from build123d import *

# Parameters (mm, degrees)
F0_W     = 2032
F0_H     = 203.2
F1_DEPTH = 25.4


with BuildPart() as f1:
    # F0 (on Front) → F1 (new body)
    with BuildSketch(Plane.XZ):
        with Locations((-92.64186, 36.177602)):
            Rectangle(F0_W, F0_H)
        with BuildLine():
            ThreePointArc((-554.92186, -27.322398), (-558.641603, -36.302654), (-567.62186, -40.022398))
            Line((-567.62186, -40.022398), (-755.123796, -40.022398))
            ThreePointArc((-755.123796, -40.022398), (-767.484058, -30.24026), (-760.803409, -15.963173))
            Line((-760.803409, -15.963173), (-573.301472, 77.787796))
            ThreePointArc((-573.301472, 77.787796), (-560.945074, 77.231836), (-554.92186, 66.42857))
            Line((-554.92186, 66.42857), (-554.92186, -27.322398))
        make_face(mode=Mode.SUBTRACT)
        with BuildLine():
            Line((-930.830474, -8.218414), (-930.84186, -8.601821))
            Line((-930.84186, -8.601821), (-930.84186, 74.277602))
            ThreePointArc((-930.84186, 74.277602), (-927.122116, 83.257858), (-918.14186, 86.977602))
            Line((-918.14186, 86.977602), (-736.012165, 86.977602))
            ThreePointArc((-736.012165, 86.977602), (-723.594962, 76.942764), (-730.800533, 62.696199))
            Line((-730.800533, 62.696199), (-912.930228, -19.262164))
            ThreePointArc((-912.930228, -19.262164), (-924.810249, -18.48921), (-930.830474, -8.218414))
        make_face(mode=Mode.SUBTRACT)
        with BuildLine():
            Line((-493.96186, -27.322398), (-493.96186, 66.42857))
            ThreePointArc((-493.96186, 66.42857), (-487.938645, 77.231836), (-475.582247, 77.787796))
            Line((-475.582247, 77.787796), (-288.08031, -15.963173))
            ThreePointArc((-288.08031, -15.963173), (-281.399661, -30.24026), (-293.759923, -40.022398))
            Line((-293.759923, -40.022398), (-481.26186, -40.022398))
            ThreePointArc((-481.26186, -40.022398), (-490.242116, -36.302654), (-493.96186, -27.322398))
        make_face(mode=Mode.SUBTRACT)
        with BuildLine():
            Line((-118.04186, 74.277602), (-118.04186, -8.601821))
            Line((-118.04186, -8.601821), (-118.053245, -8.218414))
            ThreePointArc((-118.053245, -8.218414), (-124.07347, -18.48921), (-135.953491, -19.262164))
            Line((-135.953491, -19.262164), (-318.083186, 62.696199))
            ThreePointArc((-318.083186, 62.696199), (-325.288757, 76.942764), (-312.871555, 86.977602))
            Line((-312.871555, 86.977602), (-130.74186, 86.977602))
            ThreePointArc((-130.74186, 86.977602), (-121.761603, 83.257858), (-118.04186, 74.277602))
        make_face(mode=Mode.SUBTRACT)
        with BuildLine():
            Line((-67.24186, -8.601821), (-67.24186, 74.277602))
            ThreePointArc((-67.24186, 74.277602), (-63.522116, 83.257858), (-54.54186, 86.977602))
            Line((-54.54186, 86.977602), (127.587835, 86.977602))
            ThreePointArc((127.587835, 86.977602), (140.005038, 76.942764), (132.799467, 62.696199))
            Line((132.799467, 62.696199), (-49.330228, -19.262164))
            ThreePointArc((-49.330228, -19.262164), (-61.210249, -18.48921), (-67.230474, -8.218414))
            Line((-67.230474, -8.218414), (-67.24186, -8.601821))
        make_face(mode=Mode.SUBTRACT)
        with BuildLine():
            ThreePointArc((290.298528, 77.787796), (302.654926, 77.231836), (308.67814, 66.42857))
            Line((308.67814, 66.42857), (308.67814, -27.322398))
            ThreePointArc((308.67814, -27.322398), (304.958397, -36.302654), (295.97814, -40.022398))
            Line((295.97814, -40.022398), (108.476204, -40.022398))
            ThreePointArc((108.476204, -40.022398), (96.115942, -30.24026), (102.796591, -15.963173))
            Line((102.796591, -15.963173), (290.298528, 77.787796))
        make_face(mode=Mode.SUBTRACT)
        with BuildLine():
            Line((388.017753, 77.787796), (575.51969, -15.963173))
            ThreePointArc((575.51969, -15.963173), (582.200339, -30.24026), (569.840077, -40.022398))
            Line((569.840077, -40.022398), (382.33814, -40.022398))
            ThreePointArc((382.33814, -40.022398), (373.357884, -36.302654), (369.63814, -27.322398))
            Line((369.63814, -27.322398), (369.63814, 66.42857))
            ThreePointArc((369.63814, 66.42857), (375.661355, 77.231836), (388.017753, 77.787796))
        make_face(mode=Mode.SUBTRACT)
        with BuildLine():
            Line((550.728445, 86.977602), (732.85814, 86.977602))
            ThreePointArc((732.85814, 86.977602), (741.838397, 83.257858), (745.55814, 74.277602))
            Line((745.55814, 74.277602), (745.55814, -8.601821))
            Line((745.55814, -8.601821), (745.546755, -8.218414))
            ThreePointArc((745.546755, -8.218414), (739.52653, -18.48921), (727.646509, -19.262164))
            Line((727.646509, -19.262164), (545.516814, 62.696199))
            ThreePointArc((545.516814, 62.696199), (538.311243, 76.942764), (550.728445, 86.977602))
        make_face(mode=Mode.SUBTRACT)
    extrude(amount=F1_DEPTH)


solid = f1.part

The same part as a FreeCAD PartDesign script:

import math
import FreeCAD as App
import Part
import Sketcher
from FreeCAD import Vector
Q = App.Units.Quantity


def add_polygon(sketch, points):
    """Adds a closed chain of lines whose ends are joined by coincident constraints."""
    first, n = sketch.GeometryCount, len(points)
    for a, b in zip(points, points[1:] + points[:1]):
        sketch.addGeometry(Part.LineSegment(App.Vector(*a, 0), App.Vector(*b, 0)), False)
    for i in range(n):
        sketch.addConstraint(Sketcher.Constraint("Coincident", first + i, 2, first + (i + 1) % n, 1))

doc = App.newDocument("Part")
body = doc.addObject("PartDesign::Body", "Body")

# Sketch on XZ plane
sketch1 = body.newObject("Sketcher::SketchObject", "Sketch")
sketch1.AttachmentSupport = (doc.getObject("XZ_Plane"), [""])
sketch1.MapMode = "FlatFace"
add_polygon(sketch1, [(-1108.64186, 137.777602), (-1108.64186, -65.422398), (923.35814, -65.422398), (923.35814, 137.777602)])  # lines 0-3
sketch1.addGeometry(Part.LineSegment(Vector(-554.92186, 66.42857, 0), Vector(-554.92186, -27.322398, 0)), False)  # 4
sketch1.addGeometry(Part.ArcOfCircle(Part.Circle(Vector(-567.621859, -27.322399, 0), Vector(0, 0, 1), 12.699999), math.radians(-90.000006), math.radians(0.000006)), False)  # 5
sketch1.addGeometry(Part.LineSegment(Vector(-567.62186, -40.022398, 0), Vector(-755.123796, -40.022398, 0)), False)  # 6
sketch1.addGeometry(Part.ArcOfCircle(Part.Circle(Vector(-755.123796, -27.322398, 0), Vector(0, 0, 1), 12.7), math.radians(116.565054), math.radians(269.999999)), False)  # 7
sketch1.addGeometry(Part.LineSegment(Vector(-760.803409, -15.963173, 0), Vector(-573.301472, 77.787796, 0)), False)  # 8
sketch1.addGeometry(Part.ArcOfCircle(Part.Circle(Vector(-567.621859, 66.428572, 0), Vector(0, 0, 1), 12.699999), math.radians(-0.000008), math.radians(116.565054)), False)  # 9
sketch1.addGeometry(Part.ArcOfCircle(Part.Circle(Vector(-481.26186, -27.322398, 0), Vector(0, 0, 1), 12.7), math.radians(-179.999998), math.radians(-90.000002)), False)  # 10
sketch1.addGeometry(Part.LineSegment(Vector(-493.96186, -27.322398, 0), Vector(-493.96186, 66.42857, 0)), False)  # 11
sketch1.addGeometry(Part.ArcOfCircle(Part.Circle(Vector(-481.26186, 66.428571, 0), Vector(0, 0, 1), 12.7), math.radians(63.434948), math.radians(180.000003)), False)  # 12
sketch1.addGeometry(Part.LineSegment(Vector(-475.582247, 77.787796, 0), Vector(-288.08031, -15.963173, 0)), False)  # 13
sketch1.addGeometry(Part.ArcOfCircle(Part.Circle(Vector(-293.759923, -27.322398, 0), Vector(0, 0, 1), 12.7), math.radians(-89.999999), math.radians(63.434946)), False)  # 14
sketch1.addGeometry(Part.LineSegment(Vector(-293.759923, -40.022398, 0), Vector(-481.26186, -40.022398, 0)), False)  # 15
sketch1.addGeometry(Part.LineSegment(Vector(102.796591, -15.963173, 0), Vector(290.298528, 77.787796, 0)), False)  # 16
sketch1.addGeometry(Part.ArcOfCircle(Part.Circle(Vector(295.978141, 66.428572, 0), Vector(0, 0, 1), 12.699999), math.radians(-0.000008), math.radians(116.565054)), False)  # 17
sketch1.addGeometry(Part.LineSegment(Vector(308.67814, 66.42857, 0), Vector(308.67814, -27.322398, 0)), False)  # 18
sketch1.addGeometry(Part.ArcOfCircle(Part.Circle(Vector(295.978141, -27.322399, 0), Vector(0, 0, 1), 12.699999), math.radians(-90.000006), math.radians(0.000006)), False)  # 19
sketch1.addGeometry(Part.LineSegment(Vector(295.97814, -40.022398, 0), Vector(108.476204, -40.022398, 0)), False)  # 20
sketch1.addGeometry(Part.ArcOfCircle(Part.Circle(Vector(108.476204, -27.322398, 0), Vector(0, 0, 1), 12.7), math.radians(116.565054), math.radians(269.999999)), False)  # 21
sketch1.addGeometry(Part.ArcOfCircle(Part.Circle(Vector(382.33814, 66.428571, 0), Vector(0, 0, 1), 12.7), math.radians(63.434948), math.radians(180.000003)), False)  # 22
sketch1.addGeometry(Part.LineSegment(Vector(388.017753, 77.787796, 0), Vector(575.51969, -15.963173, 0)), False)  # 23
sketch1.addGeometry(Part.ArcOfCircle(Part.Circle(Vector(569.840077, -27.322398, 0), Vector(0, 0, 1), 12.7), math.radians(-89.999999), math.radians(63.434946)), False)  # 24
sketch1.addGeometry(Part.LineSegment(Vector(569.840077, -40.022398, 0), Vector(382.33814, -40.022398, 0)), False)  # 25
sketch1.addGeometry(Part.ArcOfCircle(Part.Circle(Vector(382.33814, -27.322398, 0), Vector(0, 0, 1), 12.7), math.radians(-179.999998), math.radians(-90.000002)), False)  # 26
sketch1.addGeometry(Part.LineSegment(Vector(369.63814, -27.322398, 0), Vector(369.63814, 66.42857, 0)), False)  # 27
sketch1.addGeometry(Part.ArcOfCircle(Part.Circle(Vector(-918.141859, -7.68076, 0), Vector(0, 0, 1), 12.700001), math.radians(-177.573659), math.radians(-65.772259)), False)  # 28
sketch1.addGeometry(Part.LineSegment(Vector(-930.830474, -8.218414, 0), Vector(-930.84186, -8.601821, 0)), False)  # 29
sketch1.addGeometry(Part.LineSegment(Vector(-930.84186, -8.601821, 0), Vector(-930.84186, 74.277602, 0)), False)  # 30
sketch1.addGeometry(Part.ArcOfCircle(Part.Circle(Vector(-918.14186, 74.277602, 0), Vector(0, 0, 1), 12.7), math.radians(90.000002), math.radians(179.999998)), False)  # 31
sketch1.addGeometry(Part.LineSegment(Vector(-918.14186, 86.977602, 0), Vector(-736.012165, 86.977602, 0)), False)  # 32
sketch1.addGeometry(Part.ArcOfCircle(Part.Circle(Vector(-736.012164, 74.277602, 0), Vector(0, 0, 1), 12.7), math.radians(-65.772256), math.radians(90.000004)), False)  # 33
sketch1.addGeometry(Part.LineSegment(Vector(-730.800533, 62.696199, 0), Vector(-912.930228, -19.262164, 0)), False)  # 34
sketch1.addGeometry(Part.ArcOfCircle(Part.Circle(Vector(-130.741859, 74.277603, 0), Vector(0, 0, 1), 12.699999), math.radians(-0.000006), math.radians(90.000006)), False)  # 35
sketch1.addGeometry(Part.LineSegment(Vector(-118.04186, 74.277602, 0), Vector(-118.04186, -8.601821, 0)), False)  # 36
sketch1.addGeometry(Part.LineSegment(Vector(-118.04186, -8.601821, 0), Vector(-118.053245, -8.218414, 0)), False)  # 37
sketch1.addGeometry(Part.ArcOfCircle(Part.Circle(Vector(-130.74186, -7.68076, 0), Vector(0, 0, 1), 12.700001), math.radians(-114.227741), math.radians(-2.426341)), False)  # 38
sketch1.addGeometry(Part.LineSegment(Vector(-135.953491, -19.262164, 0), Vector(-318.083186, 62.696199, 0)), False)  # 39
sketch1.addGeometry(Part.ArcOfCircle(Part.Circle(Vector(-312.871555, 74.277602, 0), Vector(0, 0, 1), 12.7), math.radians(90.000001), math.radians(245.772256)), False)  # 40
sketch1.addGeometry(Part.LineSegment(Vector(-312.871555, 86.977602, 0), Vector(-130.74186, 86.977602, 0)), False)  # 41
sketch1.addGeometry(Part.LineSegment(Vector(-67.230474, -8.218414, 0), Vector(-67.24186, -8.601821, 0)), False)  # 42
sketch1.addGeometry(Part.LineSegment(Vector(-67.24186, -8.601821, 0), Vector(-67.24186, 74.277602, 0)), False)  # 43
sketch1.addGeometry(Part.ArcOfCircle(Part.Circle(Vector(-54.54186, 74.277602, 0), Vector(0, 0, 1), 12.7), math.radians(90.000002), math.radians(179.999998)), False)  # 44
sketch1.addGeometry(Part.LineSegment(Vector(-54.54186, 86.977602, 0), Vector(127.587835, 86.977602, 0)), False)  # 45
sketch1.addGeometry(Part.ArcOfCircle(Part.Circle(Vector(127.587836, 74.277602, 0), Vector(0, 0, 1), 12.7), math.radians(-65.772256), math.radians(90.000004)), False)  # 46
sketch1.addGeometry(Part.LineSegment(Vector(132.799467, 62.696199, 0), Vector(-49.330228, -19.262164, 0)), False)  # 47
sketch1.addGeometry(Part.ArcOfCircle(Part.Circle(Vector(-54.541859, -7.68076, 0), Vector(0, 0, 1), 12.700001), math.radians(-177.573659), math.radians(-65.772259)), False)  # 48
sketch1.addGeometry(Part.ArcOfCircle(Part.Circle(Vector(550.728445, 74.277602, 0), Vector(0, 0, 1), 12.7), math.radians(90.000001), math.radians(245.772256)), False)  # 49
sketch1.addGeometry(Part.LineSegment(Vector(550.728445, 86.977602, 0), Vector(732.85814, 86.977602, 0)), False)  # 50
sketch1.addGeometry(Part.ArcOfCircle(Part.Circle(Vector(732.858141, 74.277603, 0), Vector(0, 0, 1), 12.699999), math.radians(-0.000006), math.radians(90.000006)), False)  # 51
sketch1.addGeometry(Part.LineSegment(Vector(745.55814, 74.277602, 0), Vector(745.55814, -8.601821, 0)), False)  # 52
sketch1.addGeometry(Part.LineSegment(Vector(745.55814, -8.601821, 0), Vector(745.546755, -8.218414, 0)), False)  # 53
sketch1.addGeometry(Part.ArcOfCircle(Part.Circle(Vector(732.85814, -7.68076, 0), Vector(0, 0, 1), 12.700001), math.radians(-114.227741), math.radians(-2.426341)), False)  # 54
sketch1.addGeometry(Part.LineSegment(Vector(727.646509, -19.262164, 0), Vector(545.516814, 62.696199, 0)), False)  # 55
sketch1.addConstraint([
    Sketcher.Constraint("Coincident", 4, 2, 5, 2),
    Sketcher.Constraint("Coincident", 5, 1, 6, 1),
    Sketcher.Constraint("Coincident", 6, 2, 7, 2),
    Sketcher.Constraint("Coincident", 7, 1, 8, 1),
    Sketcher.Constraint("Coincident", 8, 2, 9, 2),
    Sketcher.Constraint("Coincident", 9, 1, 4, 1),
    Sketcher.Constraint("Coincident", 10, 1, 11, 1),
    Sketcher.Constraint("Coincident", 11, 2, 12, 2),
    Sketcher.Constraint("Coincident", 12, 1, 13, 1),
    Sketcher.Constraint("Coincident", 13, 2, 14, 2),
    Sketcher.Constraint("Coincident", 14, 1, 15, 1),
    Sketcher.Constraint("Coincident", 15, 2, 10, 2),
    Sketcher.Constraint("Coincident", 16, 2, 17, 2),
    Sketcher.Constraint("Coincident", 17, 1, 18, 1),
    Sketcher.Constraint("Coincident", 18, 2, 19, 2),
    Sketcher.Constraint("Coincident", 19, 1, 20, 1),
    Sketcher.Constraint("Coincident", 20, 2, 21, 2),
    Sketcher.Constraint("Coincident", 21, 1, 16, 1),
    Sketcher.Constraint("Coincident", 22, 1, 23, 1),
    Sketcher.Constraint("Coincident", 23, 2, 24, 2),
    Sketcher.Constraint("Coincident", 24, 1, 25, 1),
    Sketcher.Constraint("Coincident", 25, 2, 26, 2),
    Sketcher.Constraint("Coincident", 26, 1, 27, 1),
    Sketcher.Constraint("Coincident", 27, 2, 22, 2),
    Sketcher.Constraint("Coincident", 28, 1, 29, 1),
    Sketcher.Constraint("Coincident", 29, 2, 30, 1),
    Sketcher.Constraint("Coincident", 30, 2, 31, 2),
    Sketcher.Constraint("Coincident", 31, 1, 32, 1),
    Sketcher.Constraint("Coincident", 32, 2, 33, 2),
    Sketcher.Constraint("Coincident", 33, 1, 34, 1),
    Sketcher.Constraint("Coincident", 34, 2, 28, 2),
    Sketcher.Constraint("Coincident", 35, 1, 36, 1),
    Sketcher.Constraint("Coincident", 36, 2, 37, 1),
    Sketcher.Constraint("Coincident", 37, 2, 38, 2),
    Sketcher.Constraint("Coincident", 38, 1, 39, 1),
    Sketcher.Constraint("Coincident", 39, 2, 40, 2),
    Sketcher.Constraint("Coincident", 40, 1, 41, 1),
    Sketcher.Constraint("Coincident", 41, 2, 35, 2),
    Sketcher.Constraint("Coincident", 42, 2, 43, 1),
    Sketcher.Constraint("Coincident", 43, 2, 44, 2),
    Sketcher.Constraint("Coincident", 44, 1, 45, 1),
    Sketcher.Constraint("Coincident", 45, 2, 46, 2),
    Sketcher.Constraint("Coincident", 46, 1, 47, 1),
    Sketcher.Constraint("Coincident", 47, 2, 48, 2),
    Sketcher.Constraint("Coincident", 48, 1, 42, 1),
    Sketcher.Constraint("Coincident", 49, 1, 50, 1),
    Sketcher.Constraint("Coincident", 50, 2, 51, 2),
    Sketcher.Constraint("Coincident", 51, 1, 52, 1),
    Sketcher.Constraint("Coincident", 52, 2, 53, 1),
    Sketcher.Constraint("Coincident", 53, 2, 54, 2),
    Sketcher.Constraint("Coincident", 54, 1, 55, 1),
    Sketcher.Constraint("Coincident", 55, 2, 49, 2),
    Sketcher.Constraint("Vertical", 0),
    Sketcher.Constraint("Horizontal", 1),
    Sketcher.Constraint("Vertical", 2),
    Sketcher.Constraint("Horizontal", 3),
    Sketcher.Constraint("Vertical", 4),
    Sketcher.Constraint("Horizontal", 6),
    Sketcher.Constraint("Vertical", 11),
    Sketcher.Constraint("Horizontal", 15),
    Sketcher.Constraint("Vertical", 18),
    Sketcher.Constraint("Horizontal", 20),
    Sketcher.Constraint("Horizontal", 25),
    Sketcher.Constraint("Vertical", 27),
    Sketcher.Constraint("Vertical", 30),
    Sketcher.Constraint("Horizontal", 32),
    Sketcher.Constraint("Vertical", 36),
    Sketcher.Constraint("Horizontal", 41),
    Sketcher.Constraint("Vertical", 43),
    Sketcher.Constraint("Horizontal", 45),
    Sketcher.Constraint("Horizontal", 50),
    Sketcher.Constraint("Vertical", 52),
    Sketcher.Constraint("Radius", 5, Q("0.4999999 in")),
    Sketcher.Constraint("Radius", 7, Q("0.5 in")),
    Sketcher.Constraint("Radius", 9, Q("0.5 in")),
    Sketcher.Constraint("Radius", 10, Q("0.5 in")),
    Sketcher.Constraint("Radius", 12, Q("0.5 in")),
    Sketcher.Constraint("Radius", 14, Q("0.5 in")),
    Sketcher.Constraint("Radius", 17, Q("0.5 in")),
    Sketcher.Constraint("Radius", 19, Q("0.4999999 in")),
    Sketcher.Constraint("Radius", 21, Q("0.5 in")),
    Sketcher.Constraint("Radius", 22, Q("0.5 in")),
    Sketcher.Constraint("Radius", 24, Q("0.5 in")),
    Sketcher.Constraint("Radius", 26, Q("0.5 in")),
    Sketcher.Constraint("Radius", 28, Q("0.5 in")),
    Sketcher.Constraint("Radius", 31, Q("0.5 in")),
    Sketcher.Constraint("Radius", 33, Q("0.5 in")),
    Sketcher.Constraint("Radius", 35, Q("0.4999999 in")),
    Sketcher.Constraint("Radius", 38, Q("0.5 in")),
    Sketcher.Constraint("Radius", 40, Q("0.5 in")),
    Sketcher.Constraint("Radius", 44, Q("0.5 in")),
    Sketcher.Constraint("Radius", 46, Q("0.5 in")),
    Sketcher.Constraint("Radius", 48, Q("0.5 in")),
    Sketcher.Constraint("Radius", 49, Q("0.5 in")),
    Sketcher.Constraint("Radius", 51, Q("0.4999999 in")),
    Sketcher.Constraint("Radius", 54, Q("0.5 in")),
    Sketcher.Constraint("DistanceX", 1, 1, 1, 2, Q("80 in")),
    Sketcher.Constraint("DistanceY", 0, 2, 0, 1, Q("8 in")),
    Sketcher.Constraint("DistanceY", 4, 2, 4, 1, Q("93.750968 mm")),
    Sketcher.Constraint("DistanceY", 11, 1, 11, 2, Q("93.750968 mm")),
    Sketcher.Constraint("DistanceY", 18, 2, 18, 1, Q("93.750968 mm")),
    Sketcher.Constraint("DistanceY", 27, 1, 27, 2, Q("93.750968 mm")),
    Sketcher.Constraint("DistanceY", 5, 3, -1, 1, Q("27.322399 mm")),
    Sketcher.Constraint("DistanceY", 14, 3, -1, 1, Q("27.322398 mm")),
    Sketcher.Constraint("DistanceY", 19, 3, -1, 1, Q("27.322399 mm")),
    Sketcher.Constraint("DistanceY", 24, 3, -1, 1, Q("27.322398 mm")),
    Sketcher.Constraint("DistanceY", -1, 1, 31, 3, Q("74.277602 mm")),
    Sketcher.Constraint("DistanceY", -1, 1, 44, 3, Q("74.277602 mm")),
    Sketcher.Constraint("DistanceY", 0, 2, -1, 1, Q("65.422398 mm")),
    Sketcher.Constraint("DistanceY", 4, 2, -1, 1, Q("27.322398 mm")),
    Sketcher.Constraint("DistanceY", 10, 1, -1, 1, Q("27.322398 mm")),
    Sketcher.Constraint("DistanceY", 18, 2, -1, 1, Q("27.322398 mm")),
    Sketcher.Constraint("DistanceY", 26, 1, -1, 1, Q("27.322398 mm")),
    Sketcher.Constraint("DistanceY", -1, 1, 30, 2, Q("74.277602 mm")),
    Sketcher.Constraint("DistanceY", -1, 1, 33, 1, Q("62.696199 mm")),
    Sketcher.Constraint("DistanceY", -1, 1, 35, 1, Q("74.277602 mm")),
    Sketcher.Constraint("DistanceY", -1, 1, 39, 2, Q("62.696199 mm")),
    Sketcher.Constraint("DistanceY", -1, 1, 40, 1, Q("86.977602 mm")),
    Sketcher.Constraint("DistanceY", -1, 1, 43, 2, Q("74.277602 mm")),
    Sketcher.Constraint("DistanceY", -1, 1, 46, 1, Q("62.696199 mm")),
    Sketcher.Constraint("DistanceY", -1, 1, 49, 1, Q("86.977602 mm")),
    Sketcher.Constraint("DistanceY", -1, 1, 51, 1, Q("74.277602 mm")),
    Sketcher.Constraint("DistanceY", -1, 1, 55, 2, Q("62.696199 mm")),
    Sketcher.Constraint("Distance", 8, Q("209.633539 mm")),
    Sketcher.Constraint("Distance", 13, Q("209.633539 mm")),
    Sketcher.Constraint("Distance", 16, Q("209.633539 mm")),
    Sketcher.Constraint("Distance", 23, Q("209.633539 mm")),
    Sketcher.Constraint("DistanceX", 6, 2, 6, 1, Q("187.501936 mm")),
    Sketcher.Constraint("DistanceX", 15, 2, 15, 1, Q("187.501937 mm")),
    Sketcher.Constraint("DistanceX", 20, 2, 20, 1, Q("187.501936 mm")),
    Sketcher.Constraint("DistanceX", 25, 2, 25, 1, Q("187.501937 mm")),
    Sketcher.Constraint("DistanceX", 32, 1, 32, 2, Q("182.129695 mm")),
    Sketcher.Constraint("DistanceX", 41, 1, 41, 2, Q("182.129695 mm")),
    Sketcher.Constraint("DistanceX", 45, 1, 45, 2, Q("182.129695 mm")),
    Sketcher.Constraint("DistanceX", 50, 1, 50, 2, Q("182.129695 mm")),
    Sketcher.Constraint("DistanceY", 30, 1, 30, 2, Q("82.879423 mm")),
    Sketcher.Constraint("DistanceY", 36, 2, 36, 1, Q("82.879423 mm")),
    Sketcher.Constraint("DistanceY", 43, 1, 43, 2, Q("82.879423 mm")),
    Sketcher.Constraint("DistanceY", 52, 2, 52, 1, Q("82.879423 mm")),
    Sketcher.Constraint("DistanceX", 5, 3, -1, 1, Q("567.621859 mm")),
    Sketcher.Constraint("DistanceY", -1, 1, 9, 3, Q("66.428572 mm")),
    Sketcher.Constraint("DistanceX", 10, 3, -1, 1, Q("481.26186 mm")),
    Sketcher.Constraint("DistanceY", -1, 1, 12, 3, Q("66.428571 mm")),
    Sketcher.Constraint("DistanceX", -1, 1, 17, 3, Q("295.978141 mm")),
    Sketcher.Constraint("DistanceY", -1, 1, 17, 3, Q("66.428572 mm")),
    Sketcher.Constraint("DistanceX", -1, 1, 22, 3, Q("382.33814 mm")),
    Sketcher.Constraint("DistanceY", -1, 1, 22, 3, Q("66.428571 mm")),
    Sketcher.Constraint("DistanceX", 28, 3, -1, 1, Q("918.141859 mm")),
    Sketcher.Constraint("DistanceY", 28, 3, -1, 1, Q("7.68076 mm")),
    Sketcher.Constraint("DistanceX", 31, 3, -1, 1, Q("918.14186 mm")),
    Sketcher.Constraint("DistanceX", 35, 3, -1, 1, Q("130.741859 mm")),
    Sketcher.Constraint("DistanceX", 38, 3, -1, 1, Q("130.74186 mm")),
    Sketcher.Constraint("DistanceY", 38, 3, -1, 1, Q("7.68076 mm")),
    Sketcher.Constraint("DistanceX", 44, 3, -1, 1, Q("54.54186 mm")),
    Sketcher.Constraint("DistanceX", 48, 3, -1, 1, Q("54.541859 mm")),
    Sketcher.Constraint("DistanceY", 48, 3, -1, 1, Q("7.68076 mm")),
    Sketcher.Constraint("DistanceX", -1, 1, 51, 3, Q("732.858141 mm")),
    Sketcher.Constraint("DistanceX", -1, 1, 54, 3, Q("732.85814 mm")),
    Sketcher.Constraint("DistanceY", 54, 3, -1, 1, Q("7.68076 mm")),
    Sketcher.Constraint("DistanceX", 0, 2, -1, 1, Q("1108.64186 mm")),
    Sketcher.Constraint("DistanceX", 5, 1, -1, 1, Q("567.62186 mm")),
    Sketcher.Constraint("DistanceX", 7, 1, -1, 1, Q("760.803409 mm")),
    Sketcher.Constraint("DistanceX", 8, 2, -1, 1, Q("573.301472 mm")),
    Sketcher.Constraint("DistanceX", 13, 2, -1, 1, Q("288.08031 mm")),
    Sketcher.Constraint("DistanceX", 15, 2, -1, 1, Q("481.26186 mm")),
    Sketcher.Constraint("DistanceX", -1, 1, 19, 1, Q("295.97814 mm")),
    Sketcher.Constraint("DistanceX", -1, 1, 21, 1, Q("102.796591 mm")),
    Sketcher.Constraint("DistanceX", -1, 1, 23, 2, Q("575.51969 mm")),
    Sketcher.Constraint("DistanceX", -1, 1, 25, 2, Q("382.33814 mm")),
    Sketcher.Constraint("DistanceX", 31, 1, -1, 1, Q("918.14186 mm")),
    Sketcher.Constraint("DistanceX", 34, 2, -1, 1, Q("912.930228 mm")),
    Sketcher.Constraint("DistanceX", 38, 1, -1, 1, Q("135.953491 mm")),
    Sketcher.Constraint("DistanceX", 41, 2, -1, 1, Q("130.74186 mm")),
    Sketcher.Constraint("DistanceX", 44, 1, -1, 1, Q("54.54186 mm")),
    Sketcher.Constraint("DistanceX", -1, 1, 50, 2, Q("732.85814 mm")),
    Sketcher.Constraint("DistanceX", -1, 1, 54, 1, Q("727.646509 mm")),
    Sketcher.Constraint("Distance", 29, Q("0.383576 mm")),
    Sketcher.Constraint("Distance", 34, Q("199.720803 mm")),
    Sketcher.Constraint("Distance", 37, Q("0.383576 mm")),
    Sketcher.Constraint("Distance", 39, Q("199.720803 mm")),
    Sketcher.Constraint("Distance", 42, Q("0.383576 mm")),
    Sketcher.Constraint("Distance", 47, Q("199.720803 mm")),
    Sketcher.Constraint("Distance", 53, Q("0.383576 mm")),
    Sketcher.Constraint("Distance", 55, Q("199.720803 mm")),
    Sketcher.Constraint("DistanceX", 14, 3, -1, 1, Q("293.759923 mm")),
    Sketcher.Constraint("DistanceX", -1, 1, 21, 3, Q("108.476204 mm")),
    Sketcher.Constraint("DistanceX", -1, 1, 24, 3, Q("569.840077 mm")),
    Sketcher.Constraint("DistanceX", -1, 1, 46, 3, Q("127.587836 mm")),
])
pad1 = body.newObject("PartDesign::Pad", "Pad")
pad1.Profile = sketch1
pad1.Length = Q("1 in")

doc.recompute()
